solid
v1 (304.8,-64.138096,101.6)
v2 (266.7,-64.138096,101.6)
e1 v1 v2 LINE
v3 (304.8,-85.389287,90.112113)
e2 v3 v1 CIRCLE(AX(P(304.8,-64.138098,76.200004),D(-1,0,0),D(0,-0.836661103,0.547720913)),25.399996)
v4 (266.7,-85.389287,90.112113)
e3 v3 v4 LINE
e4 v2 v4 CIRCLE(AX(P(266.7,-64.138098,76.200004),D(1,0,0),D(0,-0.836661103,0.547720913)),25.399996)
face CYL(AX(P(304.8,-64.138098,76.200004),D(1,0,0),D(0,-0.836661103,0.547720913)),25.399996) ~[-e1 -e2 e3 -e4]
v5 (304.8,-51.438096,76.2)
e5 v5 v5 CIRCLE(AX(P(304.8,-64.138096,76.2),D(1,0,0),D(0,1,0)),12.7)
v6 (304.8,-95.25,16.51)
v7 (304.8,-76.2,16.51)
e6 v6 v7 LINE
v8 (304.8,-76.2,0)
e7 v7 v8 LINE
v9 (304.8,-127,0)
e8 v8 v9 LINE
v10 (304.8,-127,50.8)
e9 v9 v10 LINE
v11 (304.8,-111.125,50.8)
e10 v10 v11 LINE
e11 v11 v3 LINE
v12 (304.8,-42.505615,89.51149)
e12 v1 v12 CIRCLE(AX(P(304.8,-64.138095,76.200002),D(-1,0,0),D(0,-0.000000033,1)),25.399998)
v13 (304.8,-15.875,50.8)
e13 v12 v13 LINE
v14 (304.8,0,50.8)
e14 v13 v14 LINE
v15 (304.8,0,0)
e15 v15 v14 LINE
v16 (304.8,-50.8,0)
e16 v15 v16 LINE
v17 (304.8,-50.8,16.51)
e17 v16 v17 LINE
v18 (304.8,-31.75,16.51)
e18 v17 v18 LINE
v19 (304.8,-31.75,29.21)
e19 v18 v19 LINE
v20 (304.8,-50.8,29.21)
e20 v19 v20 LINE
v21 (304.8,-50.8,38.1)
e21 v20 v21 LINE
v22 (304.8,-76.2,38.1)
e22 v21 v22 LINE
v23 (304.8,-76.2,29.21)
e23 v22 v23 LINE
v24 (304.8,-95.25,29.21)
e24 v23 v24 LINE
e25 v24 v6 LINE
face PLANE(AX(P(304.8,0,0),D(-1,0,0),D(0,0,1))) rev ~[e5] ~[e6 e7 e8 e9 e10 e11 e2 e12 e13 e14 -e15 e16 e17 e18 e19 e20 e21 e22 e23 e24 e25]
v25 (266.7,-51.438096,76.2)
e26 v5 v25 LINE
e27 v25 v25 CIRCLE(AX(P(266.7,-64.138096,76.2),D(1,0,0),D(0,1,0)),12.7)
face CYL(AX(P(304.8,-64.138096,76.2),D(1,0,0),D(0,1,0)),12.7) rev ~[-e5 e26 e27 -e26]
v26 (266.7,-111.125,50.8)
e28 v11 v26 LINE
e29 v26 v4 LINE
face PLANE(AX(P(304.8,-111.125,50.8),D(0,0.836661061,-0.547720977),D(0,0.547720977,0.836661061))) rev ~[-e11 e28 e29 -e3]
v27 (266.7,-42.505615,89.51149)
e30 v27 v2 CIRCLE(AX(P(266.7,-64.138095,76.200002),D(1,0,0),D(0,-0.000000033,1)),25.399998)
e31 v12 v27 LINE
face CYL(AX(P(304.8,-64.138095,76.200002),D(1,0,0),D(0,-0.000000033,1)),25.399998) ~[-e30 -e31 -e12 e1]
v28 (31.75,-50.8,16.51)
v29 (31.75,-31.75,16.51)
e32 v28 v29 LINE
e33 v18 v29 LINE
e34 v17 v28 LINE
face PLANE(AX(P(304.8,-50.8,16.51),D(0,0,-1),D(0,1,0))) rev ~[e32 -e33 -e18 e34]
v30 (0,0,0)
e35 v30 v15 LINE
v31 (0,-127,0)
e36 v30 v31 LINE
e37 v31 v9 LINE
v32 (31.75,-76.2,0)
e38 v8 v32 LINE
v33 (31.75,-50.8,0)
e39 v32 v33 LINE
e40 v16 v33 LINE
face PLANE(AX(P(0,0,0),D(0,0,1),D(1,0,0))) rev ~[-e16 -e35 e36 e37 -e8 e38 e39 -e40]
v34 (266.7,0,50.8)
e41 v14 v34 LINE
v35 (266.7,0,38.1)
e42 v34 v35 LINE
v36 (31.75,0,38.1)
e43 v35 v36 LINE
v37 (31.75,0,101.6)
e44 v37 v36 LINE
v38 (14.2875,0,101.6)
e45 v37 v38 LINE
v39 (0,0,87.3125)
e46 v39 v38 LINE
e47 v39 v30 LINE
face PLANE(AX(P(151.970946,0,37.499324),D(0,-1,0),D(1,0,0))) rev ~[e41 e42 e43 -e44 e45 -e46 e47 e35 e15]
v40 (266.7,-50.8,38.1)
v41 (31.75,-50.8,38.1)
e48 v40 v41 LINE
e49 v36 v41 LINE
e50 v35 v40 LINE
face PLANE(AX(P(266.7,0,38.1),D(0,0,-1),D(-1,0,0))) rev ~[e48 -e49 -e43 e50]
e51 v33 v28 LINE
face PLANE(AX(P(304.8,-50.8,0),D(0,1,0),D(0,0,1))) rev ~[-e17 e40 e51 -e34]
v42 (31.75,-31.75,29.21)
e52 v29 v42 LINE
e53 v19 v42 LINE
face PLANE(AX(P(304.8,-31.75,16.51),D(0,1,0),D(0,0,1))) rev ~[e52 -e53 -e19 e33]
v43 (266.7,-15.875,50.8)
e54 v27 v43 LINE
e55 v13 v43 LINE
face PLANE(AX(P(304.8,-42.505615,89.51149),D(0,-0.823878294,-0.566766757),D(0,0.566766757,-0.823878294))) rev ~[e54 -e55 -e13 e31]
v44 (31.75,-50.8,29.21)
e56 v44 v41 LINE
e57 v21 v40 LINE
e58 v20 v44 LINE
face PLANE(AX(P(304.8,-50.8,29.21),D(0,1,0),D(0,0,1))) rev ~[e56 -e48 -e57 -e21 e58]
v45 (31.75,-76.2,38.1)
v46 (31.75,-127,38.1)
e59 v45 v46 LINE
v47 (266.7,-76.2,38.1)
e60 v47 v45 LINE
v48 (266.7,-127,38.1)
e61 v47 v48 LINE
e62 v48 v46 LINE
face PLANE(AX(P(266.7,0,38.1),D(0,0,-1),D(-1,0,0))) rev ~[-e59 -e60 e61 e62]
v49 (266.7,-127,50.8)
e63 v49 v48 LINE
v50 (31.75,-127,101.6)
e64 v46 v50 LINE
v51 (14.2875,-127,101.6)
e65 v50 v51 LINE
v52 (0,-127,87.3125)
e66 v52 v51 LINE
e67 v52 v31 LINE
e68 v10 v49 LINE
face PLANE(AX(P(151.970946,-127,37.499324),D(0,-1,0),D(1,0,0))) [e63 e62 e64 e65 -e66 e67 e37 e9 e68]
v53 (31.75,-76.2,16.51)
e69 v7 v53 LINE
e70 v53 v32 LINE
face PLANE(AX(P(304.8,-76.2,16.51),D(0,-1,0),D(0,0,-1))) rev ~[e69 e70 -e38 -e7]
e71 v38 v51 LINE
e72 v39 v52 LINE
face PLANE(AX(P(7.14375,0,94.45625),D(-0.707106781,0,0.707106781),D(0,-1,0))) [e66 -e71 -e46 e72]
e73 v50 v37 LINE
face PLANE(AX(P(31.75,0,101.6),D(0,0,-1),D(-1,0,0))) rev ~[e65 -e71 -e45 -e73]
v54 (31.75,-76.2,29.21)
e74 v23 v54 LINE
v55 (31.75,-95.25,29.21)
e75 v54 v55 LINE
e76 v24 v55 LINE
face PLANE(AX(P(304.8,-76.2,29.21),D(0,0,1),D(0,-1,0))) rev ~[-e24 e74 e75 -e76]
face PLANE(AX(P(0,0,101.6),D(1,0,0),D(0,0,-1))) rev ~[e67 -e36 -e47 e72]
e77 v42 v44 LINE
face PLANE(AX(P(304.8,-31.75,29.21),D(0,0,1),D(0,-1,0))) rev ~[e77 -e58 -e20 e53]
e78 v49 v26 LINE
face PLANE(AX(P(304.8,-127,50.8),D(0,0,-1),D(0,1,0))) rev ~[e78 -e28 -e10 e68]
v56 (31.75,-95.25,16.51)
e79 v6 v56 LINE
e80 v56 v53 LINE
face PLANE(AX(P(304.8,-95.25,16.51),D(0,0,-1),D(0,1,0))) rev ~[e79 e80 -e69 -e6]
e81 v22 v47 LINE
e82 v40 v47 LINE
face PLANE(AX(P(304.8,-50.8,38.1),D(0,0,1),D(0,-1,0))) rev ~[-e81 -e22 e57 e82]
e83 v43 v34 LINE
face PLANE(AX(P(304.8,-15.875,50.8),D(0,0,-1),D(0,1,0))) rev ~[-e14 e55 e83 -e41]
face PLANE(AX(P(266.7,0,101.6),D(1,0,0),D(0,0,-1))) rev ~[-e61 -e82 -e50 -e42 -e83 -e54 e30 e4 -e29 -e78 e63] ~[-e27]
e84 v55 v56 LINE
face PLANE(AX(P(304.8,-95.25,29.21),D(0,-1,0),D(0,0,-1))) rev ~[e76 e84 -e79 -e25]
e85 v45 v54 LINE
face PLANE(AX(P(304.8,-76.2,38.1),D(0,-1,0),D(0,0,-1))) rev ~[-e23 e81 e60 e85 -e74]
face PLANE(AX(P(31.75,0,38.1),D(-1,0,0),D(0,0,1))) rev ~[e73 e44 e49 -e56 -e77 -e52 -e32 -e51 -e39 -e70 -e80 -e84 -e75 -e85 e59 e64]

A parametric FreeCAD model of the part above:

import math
import FreeCAD as App
import Part
import Sketcher
from FreeCAD import Vector
Q = App.Units.Quantity


def edges_at(feature, points):
    """Names of the edges that pass closest to the given points."""
    edges = feature.Shape.Edges
    near = lambda p: min(range(len(edges)), key=lambda i: edges[i].distToShape(Part.Vertex(*p))[0])
    return sorted({f"Edge{near(p) + 1}" for p in points})


def add_polygon(sketch, points):
    """Adds a closed chain of lines whose ends are joined by coincident constraints."""
    first, n = sketch.GeometryCount, len(points)
    for a, b in zip(points, points[1:] + points[:1]):
        sketch.addGeometry(Part.LineSegment(App.Vector(*a, 0), App.Vector(*b, 0)), False)
    for i in range(n):
        sketch.addConstraint(Sketcher.Constraint("Coincident", first + i, 2, first + (i + 1) % n, 1))

doc = App.newDocument("Part")
params = doc.addObject("Spreadsheet::Sheet", "Params")
for row, (alias, value) in enumerate([
    ("sketch1_width", "12 in"),
    ("sketch1_height", "4 in"),
    ("sketch1_width2", "1.5 in"),
    ("sketch1_height2", "2.5 in"),
    ("sketch1_width3", "9.25 in"),
    ("pad1_length", "5 in"),
    ("chamfer_size", "0.5625 in"),
    ("sketch2_diameter", "1 in"),
    ("sketch2_radius", "0.9999998 in"),
    ("sketch2_width", "1 in"),
    ("sketch2_height", "2 in"),
    ("sketch2_height2", "0.5 in"),
    ("pocket1_length", "10.75 in"),
], start=1):
    params.set(f"A{row}", alias)
    params.set(f"B{row}", "=" + value)
    params.setAlias(f"B{row}", alias)

body = doc.addObject("PartDesign::Body", "Body")

sketch1 = body.newObject("Sketcher::SketchObject", "Sketch")
sketch1.AttachmentSupport = (doc.getObject("XZ_Plane"), [""])
sketch1.MapMode = "FlatFace"
add_polygon(sketch1, [(0, 101.6), (0, 0), (304.8, 0), (304.8, 101.6), (266.7, 101.6), (266.7, 38.1), (31.75, 38.1), (31.75, 101.6)])
sketch1.addConstraint(Sketcher.Constraint("Vertical", 0))
sketch1.addConstraint(Sketcher.Constraint("Horizontal", 1))
sketch1.addConstraint(Sketcher.Constraint("Vertical", 2))
sketch1.addConstraint(Sketcher.Constraint("Horizontal", 3))
sketch1.addConstraint(Sketcher.Constraint("Vertical", 4))
sketch1.addConstraint(Sketcher.Constraint("Horizontal", 5))
sketch1.addConstraint(Sketcher.Constraint("Vertical", 6))
sketch1.addConstraint(Sketcher.Constraint("Horizontal", 7))
sketch1.addConstraint(Sketcher.Constraint("Coincident", 0, 2, -1, 1))
sketch1.addConstraint(Sketcher.Constraint("Horizontal", 3, 2, 6, 2))
sketch1.addConstraint(Sketcher.Constraint("DistanceX", 1, 1, 1, 2, Q("12 in")))
sketch1.addConstraint(Sketcher.Constraint("DistanceY", 0, 2, 0, 1, Q("4 in")))
sketch1.addConstraint(Sketcher.Constraint("DistanceX", 3, 2, 3, 1, Q("1.5 in")))
sketch1.addConstraint(Sketcher.Constraint("DistanceY", 4, 2, 4, 1, Q("2.5 in")))
sketch1.addConstraint(Sketcher.Constraint("DistanceX", 5, 2, 5, 1, Q("9.25 in")))
sketch1.setExpression("Constraints[18]", "Params.sketch1_width")
sketch1.setExpression("Constraints[19]", "Params.sketch1_height")
sketch1.setExpression("Constraints[20]", "Params.sketch1_width2")
sketch1.setExpression("Constraints[21]", "Params.sketch1_height2")
sketch1.setExpression("Constraints[22]", "Params.sketch1_width3")
pad1 = body.newObject("PartDesign::Pad", "Pad")
pad1.Profile = sketch1
pad1.setExpression("Length", "Params.pad1_length")
doc.recompute()

chamfer = body.newObject("PartDesign::Chamfer", "Chamfer")
chamfer.Base = (pad1, edges_at(pad1, [(0, -63.5, 101.6)]))
chamfer.setExpression("Size", "Params.chamfer_size")

sketch2 = body.newObject("Sketcher::SketchObject", "Sketch001")
sketch2.AttachmentSupport = (doc.getObject("YZ_Plane"), [""])
sketch2.MapMode = "FlatFace"
sketch2.AttachmentOffset = App.Placement(Vector(0, 0, 12 * 25.4), App.Rotation())
sketch2.addGeometry(Part.ArcOfCircle(Part.Circle(Vector(-64.138098, 76.200004, 0), Vector(0, 0, 1), 25.399996), math.radians(89.999995), math.radians(146.789202)), False)
sketch2.addGeometry(Part.LineSegment(Vector(-64.138096, 101.6, 0), Vector(-127, 101.6, 0)), False)
sketch2.addGeometry(Part.LineSegment(Vector(-127, 101.6, 0), Vector(-127, 50.8, 0)), False)
sketch2.addGeometry(Part.LineSegment(Vector(-127, 50.8, 0), Vector(-111.125, 50.8, 0)), False)
sketch2.addGeometry(Part.LineSegment(Vector(-111.125, 50.8, 0), Vector(-85.389287, 90.112113, 0)), False)
sketch2.addGeometry(Part.LineSegment(Vector(-15.875, 50.8, 0), Vector(0, 50.8, 0)), False)
sketch2.addGeometry(Part.LineSegment(Vector(0, 50.8, 0), Vector(0, 101.6, 0)), False)
sketch2.addGeometry(Part.LineSegment(Vector(0, 101.6, 0), Vector(-64.138096, 101.6, 0)), False)
sketch2.addGeometry(Part.ArcOfCircle(Part.Circle(Vector(-64.138095, 76.200002, 0), Vector(0, 0, 1), 25.399998), math.radians(31.605952), math.radians(90.000002)), False)
sketch2.addGeometry(Part.LineSegment(Vector(-42.505615, 89.51149, 0), Vector(-15.875, 50.8, 0)), False)
sketch2.addGeometry(Part.Circle(Vector(-64.138096, 76.2, 0), Vector(0, 0, 1), 12.7), False)
add_polygon(sketch2, [(-76.2, 16.51), (-76.2, 0), (-50.8, 0), (-50.8, 16.51), (-31.75, 16.51), (-31.75, 29.21), (-50.8, 29.21), (-50.8, 38.1), (-76.2, 38.1), (-76.2, 29.21), (-95.25, 29.21), (-95.25, 16.51)])
sketch2.addConstraint(Sketcher.Constraint("Tangent", 0, 1, 1, 1))
sketch2.addConstraint(Sketcher.Constraint("Coincident", 1, 2, 2, 1))
sketch2.addConstraint(Sketcher.Constraint("Coincident", 2, 2, 3, 1))
sketch2.addConstraint(Sketcher.Constraint("Coincident", 3, 2, 4, 1))
sketch2.addConstraint(Sketcher.Constraint("Tangent", 4, 2, 0, 2))
sketch2.addConstraint(Sketcher.Constraint("Coincident", 5, 2, 6, 1))
sketch2.addConstraint(Sketcher.Constraint("Coincident", 6, 2, 7, 1))
sketch2.addConstraint(Sketcher.Constraint("Tangent", 7, 2, 8, 2))
sketch2.addConstraint(Sketcher.Constraint("Coincident", 8, 1, 9, 1))
sketch2.addConstraint(Sketcher.Constraint("Coincident", 9, 2, 5, 1))
sketch2.addConstraint(Sketcher.Constraint("Horizontal", 1))
sketch2.addConstraint(Sketcher.Constraint("Vertical", 2))
sketch2.addConstraint(Sketcher.Constraint("Horizontal", 3))
sketch2.addConstraint(Sketcher.Constraint("Horizontal", 5))
sketch2.addConstraint(Sketcher.Constraint("Vertical", 6))
sketch2.addConstraint(Sketcher.Constraint("Horizontal", 7))
sketch2.addConstraint(Sketcher.Constraint("Vertical", 11))
sketch2.addConstraint(Sketcher.Constraint("Horizontal", 12))
sketch2.addConstraint(Sketcher.Constraint("Vertical", 13))
sketch2.addConstraint(Sketcher.Constraint("Horizontal", 14))
sketch2.addConstraint(Sketcher.Constraint("Vertical", 15))
sketch2.addConstraint(Sketcher.Constraint("Horizontal", 16))
sketch2.addConstraint(Sketcher.Constraint("Vertical", 17))
sketch2.addConstraint(Sketcher.Constraint("Horizontal", 18))
sketch2.addConstraint(Sketcher.Constraint("Vertical", 19))
sketch2.addConstraint(Sketcher.Constraint("Horizontal", 20))
sketch2.addConstraint(Sketcher.Constraint("Vertical", 21))
sketch2.addConstraint(Sketcher.Constraint("Horizontal", 22))
sketch2.addConstraint(Sketcher.Constraint("Coincident", 8, 3, 0, 3))
sketch2.addConstraint(Sketcher.Constraint("Coincident", 10, 3, 0, 3))
sketch2.addConstraint(Sketcher.Constraint("PointOnObject", 5, 2, -2))
sketch2.addConstraint(Sketcher.Constraint("PointOnObject", 11, 2, -1))
sketch2.addConstraint(Sketcher.Constraint("Horizontal", 3, 2, 5, 2))
sketch2.addConstraint(Sketcher.Constraint("Horizontal", 1, 2, 6, 2))
sketch2.addConstraint(Sketcher.Constraint("Horizontal", 16, 2, 19, 2))
sketch2.addConstraint(Sketcher.Constraint("Horizontal", 14, 2, 21, 2))
sketch2.addConstraint(Sketcher.Constraint("Vertical", 13, 2, 16, 2))
sketch2.addConstraint(Sketcher.Constraint("Vertical", 11, 2, 18, 2))
sketch2.addConstraint(Sketcher.Constraint("Equal", 3, 5))
sketch2.addConstraint(Sketcher.Constraint("Equal", 16, 20))
sketch2.addConstraint(Sketcher.Constraint("Equal", 4, 9))
sketch2.addConstraint(Sketcher.Constraint("Diameter", 10, Q("1 in")))
sketch2.addConstraint(Sketcher.Constraint("Radius", 0, Q("0.9999998 in")))
sketch2.addConstraint(Sketcher.Constraint("DistanceX", 12, 1, 12, 2, Q("1 in")))
sketch2.addConstraint(Sketcher.Constraint("DistanceY", 2, 2, 2, 1, Q("2 in")))
sketch2.addConstraint(Sketcher.Constraint("DistanceY", 15, 1, 15, 2, Q("0.5 in")))
sketch2.addConstraint(Sketcher.Constraint("DistanceY", -1, 1, 0, 3, Q("3.0000002 in")))
sketch2.addConstraint(Sketcher.Constraint("DistanceX", 1, 2, -1, 1, Q("5 in")))
sketch2.addConstraint(Sketcher.Constraint("DistanceX", 11, 2, -1, 1, Q("3 in")))
sketch2.addConstraint(Sketcher.Constraint("DistanceX", 14, 1, 14, 2, Q("0.75 in")))
sketch2.addConstraint(Sketcher.Constraint("DistanceY", 11, 2, 11, 1, Q("0.65 in")))
sketch2.addConstraint(Sketcher.Constraint("DistanceY", 17, 1, 17, 2, Q("0.35 in")))
sketch2.addConstraint(Sketcher.Constraint("DistanceX", 3, 1, 3, 2, Q("0.625 in")))
sketch2.addConstraint(Sketcher.Constraint("DistanceX", 0, 3, -1, 1, Q("64.138098 mm")))
sketch2.setExpression("Constraints[53]", "Params.sketch2_diameter")
sketch2.setExpression("Constraints[54]", "Params.sketch2_radius")
sketch2.setExpression("Constraints[55]", "Params.sketch2_width")
sketch2.setExpression("Constraints[56]", "Params.sketch2_height")
sketch2.setExpression("Constraints[57]", "Params.sketch2_height2")
pocket1 = body.newObject("PartDesign::Pocket", "Pocket")
pocket1.Profile = sketch2
pocket1.setExpression("Length", "Params.pocket1_length")

doc.recompute()
